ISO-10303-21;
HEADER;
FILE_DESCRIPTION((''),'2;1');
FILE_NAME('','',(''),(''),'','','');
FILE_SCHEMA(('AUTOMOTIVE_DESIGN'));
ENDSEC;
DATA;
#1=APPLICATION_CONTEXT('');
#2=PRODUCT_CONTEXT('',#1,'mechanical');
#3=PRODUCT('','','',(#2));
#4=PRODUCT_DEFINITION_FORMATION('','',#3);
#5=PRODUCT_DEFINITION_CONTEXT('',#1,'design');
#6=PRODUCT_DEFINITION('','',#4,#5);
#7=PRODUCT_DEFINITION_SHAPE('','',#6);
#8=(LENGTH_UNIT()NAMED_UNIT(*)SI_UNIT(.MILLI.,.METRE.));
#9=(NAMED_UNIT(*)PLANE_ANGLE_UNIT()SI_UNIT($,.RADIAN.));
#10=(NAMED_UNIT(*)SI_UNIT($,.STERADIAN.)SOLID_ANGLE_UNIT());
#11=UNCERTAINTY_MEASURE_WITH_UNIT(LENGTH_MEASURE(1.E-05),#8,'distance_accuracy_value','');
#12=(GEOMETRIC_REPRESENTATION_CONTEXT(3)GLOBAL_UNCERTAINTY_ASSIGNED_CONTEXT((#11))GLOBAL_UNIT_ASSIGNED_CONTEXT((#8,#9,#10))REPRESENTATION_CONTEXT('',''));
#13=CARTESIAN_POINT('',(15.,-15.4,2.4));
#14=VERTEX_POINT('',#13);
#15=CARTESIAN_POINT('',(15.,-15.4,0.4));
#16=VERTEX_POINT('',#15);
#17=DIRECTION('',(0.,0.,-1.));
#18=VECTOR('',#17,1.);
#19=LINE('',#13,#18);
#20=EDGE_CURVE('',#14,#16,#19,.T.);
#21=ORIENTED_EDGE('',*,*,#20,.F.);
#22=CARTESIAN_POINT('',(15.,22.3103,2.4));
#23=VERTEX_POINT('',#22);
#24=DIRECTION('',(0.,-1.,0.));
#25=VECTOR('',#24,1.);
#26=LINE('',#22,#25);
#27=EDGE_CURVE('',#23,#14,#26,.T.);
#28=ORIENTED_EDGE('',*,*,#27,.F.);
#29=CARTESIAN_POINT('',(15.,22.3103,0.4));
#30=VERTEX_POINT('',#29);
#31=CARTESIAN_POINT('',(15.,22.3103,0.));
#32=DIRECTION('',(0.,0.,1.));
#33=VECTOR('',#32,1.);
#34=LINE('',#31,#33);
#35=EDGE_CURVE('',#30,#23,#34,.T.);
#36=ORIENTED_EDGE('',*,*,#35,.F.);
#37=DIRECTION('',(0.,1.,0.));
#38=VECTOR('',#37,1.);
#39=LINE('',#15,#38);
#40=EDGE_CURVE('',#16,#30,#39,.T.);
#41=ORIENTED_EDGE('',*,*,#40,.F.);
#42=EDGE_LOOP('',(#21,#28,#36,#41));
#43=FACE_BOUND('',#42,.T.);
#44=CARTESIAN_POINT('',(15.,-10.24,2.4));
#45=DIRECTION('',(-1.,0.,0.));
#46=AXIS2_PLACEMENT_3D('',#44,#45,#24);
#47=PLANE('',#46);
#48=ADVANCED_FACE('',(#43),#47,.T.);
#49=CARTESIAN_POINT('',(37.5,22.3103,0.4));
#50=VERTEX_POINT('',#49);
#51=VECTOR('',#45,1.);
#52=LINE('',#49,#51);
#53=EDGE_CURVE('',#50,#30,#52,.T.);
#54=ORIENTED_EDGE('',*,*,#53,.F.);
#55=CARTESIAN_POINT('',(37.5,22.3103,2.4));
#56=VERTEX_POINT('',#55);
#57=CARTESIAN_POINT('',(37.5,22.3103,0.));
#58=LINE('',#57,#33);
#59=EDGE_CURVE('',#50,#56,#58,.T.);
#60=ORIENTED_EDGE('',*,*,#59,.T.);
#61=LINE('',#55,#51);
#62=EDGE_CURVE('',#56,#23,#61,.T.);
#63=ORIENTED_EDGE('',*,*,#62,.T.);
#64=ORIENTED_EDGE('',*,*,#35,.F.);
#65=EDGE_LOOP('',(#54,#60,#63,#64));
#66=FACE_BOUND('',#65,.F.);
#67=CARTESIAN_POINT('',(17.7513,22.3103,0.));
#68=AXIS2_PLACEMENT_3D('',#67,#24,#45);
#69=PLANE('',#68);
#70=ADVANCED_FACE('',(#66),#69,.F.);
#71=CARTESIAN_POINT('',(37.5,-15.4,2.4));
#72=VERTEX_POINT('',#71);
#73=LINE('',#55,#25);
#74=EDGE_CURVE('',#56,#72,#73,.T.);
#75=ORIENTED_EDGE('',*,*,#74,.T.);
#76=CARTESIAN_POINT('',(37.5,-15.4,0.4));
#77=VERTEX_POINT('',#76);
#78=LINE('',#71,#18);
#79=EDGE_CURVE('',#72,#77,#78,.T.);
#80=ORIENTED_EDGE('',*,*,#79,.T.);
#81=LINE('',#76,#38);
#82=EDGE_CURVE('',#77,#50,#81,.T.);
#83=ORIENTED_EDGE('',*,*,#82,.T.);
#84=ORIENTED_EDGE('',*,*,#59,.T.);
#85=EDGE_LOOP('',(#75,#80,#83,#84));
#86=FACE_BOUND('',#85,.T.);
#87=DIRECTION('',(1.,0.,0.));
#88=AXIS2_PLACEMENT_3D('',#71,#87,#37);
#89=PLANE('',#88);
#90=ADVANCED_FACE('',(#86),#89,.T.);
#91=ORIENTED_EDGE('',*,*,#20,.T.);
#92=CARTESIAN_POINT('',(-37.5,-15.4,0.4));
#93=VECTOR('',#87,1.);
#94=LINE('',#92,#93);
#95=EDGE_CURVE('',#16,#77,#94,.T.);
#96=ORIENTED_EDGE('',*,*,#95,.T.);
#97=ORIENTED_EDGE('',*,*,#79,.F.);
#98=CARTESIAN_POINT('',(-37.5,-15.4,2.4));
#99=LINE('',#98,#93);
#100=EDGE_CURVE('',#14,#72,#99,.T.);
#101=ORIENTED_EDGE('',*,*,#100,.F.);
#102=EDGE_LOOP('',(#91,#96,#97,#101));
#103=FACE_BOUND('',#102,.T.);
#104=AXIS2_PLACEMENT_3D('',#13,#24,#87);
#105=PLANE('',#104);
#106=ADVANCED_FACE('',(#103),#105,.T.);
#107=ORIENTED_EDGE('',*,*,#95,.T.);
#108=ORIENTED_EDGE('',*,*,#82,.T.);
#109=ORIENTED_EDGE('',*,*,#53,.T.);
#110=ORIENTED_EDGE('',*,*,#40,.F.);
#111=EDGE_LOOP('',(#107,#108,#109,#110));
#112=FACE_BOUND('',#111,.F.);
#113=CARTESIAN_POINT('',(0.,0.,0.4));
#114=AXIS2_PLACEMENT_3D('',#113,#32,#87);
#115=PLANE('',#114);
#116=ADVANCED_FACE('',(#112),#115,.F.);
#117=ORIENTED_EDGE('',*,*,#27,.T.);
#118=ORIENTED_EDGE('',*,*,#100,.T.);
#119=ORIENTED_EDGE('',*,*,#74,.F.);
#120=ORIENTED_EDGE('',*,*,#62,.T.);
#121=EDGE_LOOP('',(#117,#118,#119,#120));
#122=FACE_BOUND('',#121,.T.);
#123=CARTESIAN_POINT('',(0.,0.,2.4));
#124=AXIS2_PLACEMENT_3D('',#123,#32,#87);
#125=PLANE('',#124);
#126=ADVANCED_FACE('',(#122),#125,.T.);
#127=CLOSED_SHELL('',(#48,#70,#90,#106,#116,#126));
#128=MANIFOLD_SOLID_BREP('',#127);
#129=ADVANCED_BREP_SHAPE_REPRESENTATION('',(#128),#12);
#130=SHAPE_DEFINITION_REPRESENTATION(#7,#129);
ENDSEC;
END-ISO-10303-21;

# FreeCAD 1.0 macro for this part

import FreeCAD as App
import Part
import Sketcher
from FreeCAD import Vector


def add_polygon(sketch, points):
    """Adds a closed chain of lines whose ends are joined by coincident constraints."""
    first, n = sketch.GeometryCount, len(points)
    for a, b in zip(points, points[1:] + points[:1]):
        sketch.addGeometry(Part.LineSegment(App.Vector(*a, 0), App.Vector(*b, 0)), False)
    for i in range(n):
        sketch.addConstraint(Sketcher.Constraint("Coincident", first + i, 2, first + (i + 1) % n, 1))

doc = App.newDocument("Part")
body = doc.addObject("PartDesign::Body", "Body")

# Sketch on XY plane
sketch1 = body.newObject("Sketcher::SketchObject", "Sketch")
sketch1.AttachmentSupport = (doc.getObject("XY_Plane"), [""])
sketch1.MapMode = "FlatFace"
add_polygon(sketch1, [(15, -5), (38, -5), (38, 22), (15, 22)])  # lines 0-3
sketch1.addConstraint([
    Sketcher.Constraint("Horizontal", 0),
    Sketcher.Constraint("Vertical", 1),
    Sketcher.Constraint("Horizontal", 2),
    Sketcher.Constraint("Vertical", 3),
    Sketcher.Constraint("DistanceX", 0, 1, 0, 2, 22.5),
    Sketcher.Constraint("DistanceX", -1, 1, 2, 2, 15.0),
    Sketcher.Constraint("DistanceY", 0, 2, -1, 1, 5.24),
    Sketcher.Constraint("DistanceY", 1, 1, 1, 2, 27.5503),
])
pad1 = body.newObject("PartDesign::Pad", "Pad")
pad1.Profile = sketch1
pad1.Length = 2.4

# Sketch on XY plane
sketch2 = body.newObject("Sketcher::SketchObject", "Sketch001")
sketch2.AttachmentSupport = (doc.getObject("XY_Plane"), [""])
sketch2.MapMode = "FlatFace"
add_polygon(sketch2, [(38, -5), (15, -5), (15, 22), (38, 22)])  # lines 0-3
sketch2.addConstraint([
    Sketcher.Constraint("Horizontal", 0),
    Sketcher.Constraint("Vertical", 1),
    Sketcher.Constraint("Horizontal", 2),
    Sketcher.Constraint("Vertical", 3),
    Sketcher.Constraint("DistanceX", 0, 2, 0, 1, 22.5),
    Sketcher.Constraint("DistanceX", -1, 1, 0, 2, 15.0),
    Sketcher.Constraint("DistanceY", 0, 2, -1, 1, 5.24),
    Sketcher.Constraint("DistanceY", 1, 1, 1, 2, 27.5503),
])
pocket1 = body.newObject("PartDesign::Pocket", "Pocket")
pocket1.Profile = sketch2
pocket1.Length = 0.4
pocket1.Reversed = True

# Sketch on XY plane
sketch3 = body.newObject("Sketcher::SketchObject", "Sketch002")
sketch3.AttachmentSupport = (doc.getObject("XY_Plane"), [""])
sketch3.MapMode = "FlatFace"
sketch3.AttachmentOffset = App.Placement(Vector(0, 0, 2.4), App.Rotation())
add_polygon(sketch3, [(38, -5), (15, -5), (15, -15), (38, -15)])  # lines 0-3
sketch3.addConstraint([
    Sketcher.Constraint("Horizontal", 0),
    Sketcher.Constraint("Vertical", 1),
    Sketcher.Constraint("Horizontal", 2),
    Sketcher.Constraint("Vertical", 3),
    Sketcher.Constraint("DistanceX", 0, 2, 0, 1, 22.5),
    Sketcher.Constraint("DistanceX", -1, 1, 0, 2, 15.0),
    Sketcher.Constraint("DistanceY", 1, 2, 1, 1, 10.16),
    Sketcher.Constraint("DistanceY", 1, 2, -1, 1, 15.4),
])
pad2 = body.newObject("PartDesign::Pad", "Pad001")
pad2.Profile = sketch3
pad2.Length = 2
pad2.Reversed = True

doc.recompute()
